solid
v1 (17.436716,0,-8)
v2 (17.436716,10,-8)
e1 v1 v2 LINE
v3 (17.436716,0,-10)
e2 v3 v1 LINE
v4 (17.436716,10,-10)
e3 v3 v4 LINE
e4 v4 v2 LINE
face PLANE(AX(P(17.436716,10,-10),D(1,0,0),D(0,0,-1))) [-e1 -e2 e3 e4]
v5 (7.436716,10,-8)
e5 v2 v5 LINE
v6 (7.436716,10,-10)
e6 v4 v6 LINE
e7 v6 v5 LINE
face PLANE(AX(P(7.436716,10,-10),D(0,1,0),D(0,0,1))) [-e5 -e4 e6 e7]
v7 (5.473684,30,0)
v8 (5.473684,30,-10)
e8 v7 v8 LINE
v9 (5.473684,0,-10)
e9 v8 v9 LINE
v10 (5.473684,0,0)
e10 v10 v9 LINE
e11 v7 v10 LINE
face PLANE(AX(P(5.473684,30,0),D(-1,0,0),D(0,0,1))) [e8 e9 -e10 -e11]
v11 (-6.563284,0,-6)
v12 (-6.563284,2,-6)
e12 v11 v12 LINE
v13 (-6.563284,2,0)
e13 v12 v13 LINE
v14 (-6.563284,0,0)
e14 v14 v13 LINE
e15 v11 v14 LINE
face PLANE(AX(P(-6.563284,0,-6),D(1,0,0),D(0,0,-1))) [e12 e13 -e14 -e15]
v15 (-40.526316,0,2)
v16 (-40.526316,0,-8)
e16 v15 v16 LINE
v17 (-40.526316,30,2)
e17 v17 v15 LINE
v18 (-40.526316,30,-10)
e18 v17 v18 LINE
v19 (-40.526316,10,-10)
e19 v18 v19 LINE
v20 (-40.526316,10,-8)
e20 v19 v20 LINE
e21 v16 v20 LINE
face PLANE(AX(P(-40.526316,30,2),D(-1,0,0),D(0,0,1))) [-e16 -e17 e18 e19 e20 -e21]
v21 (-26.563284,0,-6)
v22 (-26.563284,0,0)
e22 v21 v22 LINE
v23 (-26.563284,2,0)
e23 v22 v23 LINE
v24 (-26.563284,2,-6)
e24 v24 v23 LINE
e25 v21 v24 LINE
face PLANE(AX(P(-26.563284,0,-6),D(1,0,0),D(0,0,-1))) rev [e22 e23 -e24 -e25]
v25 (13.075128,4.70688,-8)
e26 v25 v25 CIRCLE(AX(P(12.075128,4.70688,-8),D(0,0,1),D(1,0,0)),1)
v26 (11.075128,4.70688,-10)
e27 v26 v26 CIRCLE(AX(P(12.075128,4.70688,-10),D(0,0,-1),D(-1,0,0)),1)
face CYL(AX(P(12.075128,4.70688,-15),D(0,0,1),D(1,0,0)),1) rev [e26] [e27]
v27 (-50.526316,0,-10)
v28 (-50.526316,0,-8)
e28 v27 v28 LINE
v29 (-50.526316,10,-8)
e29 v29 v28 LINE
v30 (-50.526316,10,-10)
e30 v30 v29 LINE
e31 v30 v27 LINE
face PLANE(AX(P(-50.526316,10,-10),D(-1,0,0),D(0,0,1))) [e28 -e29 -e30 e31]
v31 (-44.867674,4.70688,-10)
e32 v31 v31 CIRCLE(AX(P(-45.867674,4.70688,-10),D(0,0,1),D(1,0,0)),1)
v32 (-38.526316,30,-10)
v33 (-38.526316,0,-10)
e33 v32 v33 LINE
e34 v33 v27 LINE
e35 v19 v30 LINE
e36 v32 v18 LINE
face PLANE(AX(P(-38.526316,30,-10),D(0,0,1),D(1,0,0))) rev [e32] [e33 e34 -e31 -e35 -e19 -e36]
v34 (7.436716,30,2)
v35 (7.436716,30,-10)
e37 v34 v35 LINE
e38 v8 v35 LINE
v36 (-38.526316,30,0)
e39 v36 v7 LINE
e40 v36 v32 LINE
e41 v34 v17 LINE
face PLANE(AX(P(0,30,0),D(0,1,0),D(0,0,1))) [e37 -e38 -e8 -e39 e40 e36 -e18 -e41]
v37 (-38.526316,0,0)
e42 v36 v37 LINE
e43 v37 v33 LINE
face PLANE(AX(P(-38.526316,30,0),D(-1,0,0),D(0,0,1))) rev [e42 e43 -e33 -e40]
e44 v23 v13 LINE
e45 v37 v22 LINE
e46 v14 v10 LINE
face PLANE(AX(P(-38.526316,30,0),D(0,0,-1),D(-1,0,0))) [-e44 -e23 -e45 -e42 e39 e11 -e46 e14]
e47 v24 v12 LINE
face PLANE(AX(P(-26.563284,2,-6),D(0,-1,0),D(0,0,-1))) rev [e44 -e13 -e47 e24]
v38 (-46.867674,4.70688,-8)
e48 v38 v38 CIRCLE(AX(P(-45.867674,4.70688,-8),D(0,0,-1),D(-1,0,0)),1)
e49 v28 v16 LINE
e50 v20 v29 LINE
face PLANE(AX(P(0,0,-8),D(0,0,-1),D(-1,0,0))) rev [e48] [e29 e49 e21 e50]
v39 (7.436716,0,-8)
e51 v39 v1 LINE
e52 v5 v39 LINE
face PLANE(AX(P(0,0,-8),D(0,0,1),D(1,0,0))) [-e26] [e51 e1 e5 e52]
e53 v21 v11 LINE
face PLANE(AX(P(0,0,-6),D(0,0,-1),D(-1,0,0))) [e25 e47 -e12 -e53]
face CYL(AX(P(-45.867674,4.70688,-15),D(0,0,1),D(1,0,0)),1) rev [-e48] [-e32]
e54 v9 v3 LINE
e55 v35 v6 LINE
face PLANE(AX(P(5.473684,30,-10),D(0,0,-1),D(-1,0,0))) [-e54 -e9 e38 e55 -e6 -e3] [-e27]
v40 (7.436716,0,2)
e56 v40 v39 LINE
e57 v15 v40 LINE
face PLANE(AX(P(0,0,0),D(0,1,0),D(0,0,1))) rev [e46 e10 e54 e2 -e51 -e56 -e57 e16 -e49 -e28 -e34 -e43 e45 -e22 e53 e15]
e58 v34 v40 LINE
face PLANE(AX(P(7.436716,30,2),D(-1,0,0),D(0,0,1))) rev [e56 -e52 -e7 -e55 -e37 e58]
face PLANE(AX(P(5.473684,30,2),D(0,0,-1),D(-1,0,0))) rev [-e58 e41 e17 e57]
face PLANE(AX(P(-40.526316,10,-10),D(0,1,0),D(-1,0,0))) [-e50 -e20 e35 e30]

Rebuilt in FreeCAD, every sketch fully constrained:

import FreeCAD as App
import Part
import Sketcher

V = App.Vector

doc = App.newDocument("Part")
body = doc.addObject("PartDesign::Body", "Body")

sketch1 = doc.addObject("Sketcher::SketchObject", "Sketch")
body.addObject(sketch1)
sketch1.AttachmentSupport = (doc.XZ_Plane, [""])
sketch1.MapMode = "FlatFace"
sketch1.addGeometry([
    Part.LineSegment(V(5.5, 0, 0), V(-38.5, 0, 0)),
    Part.LineSegment(V(-38.5, 0, 0), V(-38.5, -10, 0)),
    Part.LineSegment(V(-38.5, -10, 0), V(-40.5, -10, 0)),
    Part.LineSegment(V(-40.5, -10, 0), V(-40.5, 2, 0)),
    Part.LineSegment(V(-40.5, 2, 0), V(7.4, 2, 0)),
    Part.LineSegment(V(7.4, 2, 0), V(7.4, -10, 0)),
    Part.LineSegment(V(7.4, -10, 0), V(5.5, -10, 0)),
    Part.LineSegment(V(5.5, -10, 0), V(5.5, 0, 0)),
], False)
sketch1.addConstraint([
    Sketcher.Constraint("Coincident", 0, 2, 1, 1),
    Sketcher.Constraint("Coincident", 1, 2, 2, 1),
    Sketcher.Constraint("Coincident", 2, 2, 3, 1),
    Sketcher.Constraint("Coincident", 3, 2, 4, 1),
    Sketcher.Constraint("Coincident", 4, 2, 5, 1),
    Sketcher.Constraint("Coincident", 5, 2, 6, 1),
    Sketcher.Constraint("Coincident", 6, 2, 7, 1),
    Sketcher.Constraint("Coincident", 7, 2, 0, 1),
    Sketcher.Constraint("Horizontal", 0),
    Sketcher.Constraint("Vertical", 1),
    Sketcher.Constraint("Horizontal", 2),
    Sketcher.Constraint("Vertical", 3),
    Sketcher.Constraint("Horizontal", 4),
    Sketcher.Constraint("Vertical", 5),
    Sketcher.Constraint("Horizontal", 6),
    Sketcher.Constraint("Vertical", 7),
    Sketcher.Constraint("PointOnObject", 0, 2, -1),
    Sketcher.Constraint("Horizontal", 2, 2, 5, 2),
    Sketcher.Constraint("DistanceX", 0, 2, 0, 1, 44.0),
    Sketcher.Constraint("DistanceX", 2, 2, 2, 1, 2.0),
    Sketcher.Constraint("DistanceY", 1, 2, 1, 1, 10.0),
    Sketcher.Constraint("DistanceY", 3, 1, 3, 2, 12.0),
    Sketcher.Constraint("DistanceX", 4, 1, 4, 2, 47.963032),
    Sketcher.Constraint("DistanceX", 0, 2, -1, 1, 38.526316),
])
pad1 = doc.addObject("PartDesign::Pad", "Pad")
body.addObject(pad1)
pad1.Profile = sketch1
pad1.Length = 30
pad1.Reversed = True

sketch2 = doc.addObject("Sketcher::SketchObject", "Sketch001")
body.addObject(sketch2)
sketch2.AttachmentSupport = (doc.XY_Plane, [""])
sketch2.MapMode = "FlatFace"
sketch2.addGeometry([
    Part.LineSegment(V(-26.6, 2, 0), V(-26.6, 0, 0)),
    Part.LineSegment(V(-26.6, 0, 0), V(-6.6, 0, 0)),
    Part.LineSegment(V(-6.6, 0, 0), V(-6.6, 2, 0)),
    Part.LineSegment(V(-6.6, 2, 0), V(-26.6, 2, 0)),
], False)
sketch2.addConstraint([
    Sketcher.Constraint("Coincident", 0, 2, 1, 1),
    Sketcher.Constraint("Coincident", 1, 2, 2, 1),
    Sketcher.Constraint("Coincident", 2, 2, 3, 1),
    Sketcher.Constraint("Coincident", 3, 2, 0, 1),
    Sketcher.Constraint("Vertical", 0),
    Sketcher.Constraint("Horizontal", 1),
    Sketcher.Constraint("Vertical", 2),
    Sketcher.Constraint("Horizontal", 3),
    Sketcher.Constraint("PointOnObject", 0, 2, -1),
    Sketcher.Constraint("DistanceX", 1, 1, 1, 2, 20.0),
    Sketcher.Constraint("DistanceY", 0, 2, 0, 1, 2.0),
    Sketcher.Constraint("DistanceX", 0, 2, -1, 1, 26.563284),
])
pad2 = doc.addObject("PartDesign::Pad", "Pad001")
body.addObject(pad2)
pad2.Profile = sketch2
pad2.Length = 6
pad2.Reversed = True

sketch3 = doc.addObject("Sketcher::SketchObject", "Sketch002")
body.addObject(sketch3)
sketch3.AttachmentSupport = (doc.XY_Plane, [""])
sketch3.MapMode = "FlatFace"
sketch3.addGeometry([
    Part.LineSegment(V(-51, 10, 0), V(-51, 0, 0)),
    Part.LineSegment(V(-51, 0, 0), V(-41, 0, 0)),
    Part.LineSegment(V(-41, 0, 0), V(-41, 10, 0)),
    Part.LineSegment(V(-41, 10, 0), V(-51, 10, 0)),
    Part.LineSegment(V(7, 10, 0), V(7, 0, 0)),
    Part.LineSegment(V(7, 0, 0), V(17, 0, 0)),
    Part.LineSegment(V(17, 0, 0), V(17, 10, 0)),
    Part.LineSegment(V(17, 10, 0), V(7, 10, 0)),
], False)
sketch3.addConstraint([
    Sketcher.Constraint("Coincident", 0, 2, 1, 1),
    Sketcher.Constraint("Coincident", 1, 2, 2, 1),
    Sketcher.Constraint("Coincident", 2, 2, 3, 1),
    Sketcher.Constraint("Coincident", 3, 2, 0, 1),
    Sketcher.Constraint("Coincident", 4, 2, 5, 1),
    Sketcher.Constraint("Coincident", 5, 2, 6, 1),
    Sketcher.Constraint("Coincident", 6, 2, 7, 1),
    Sketcher.Constraint("Coincident", 7, 2, 4, 1),
    Sketcher.Constraint("Vertical", 0),
    Sketcher.Constraint("Horizontal", 1),
    Sketcher.Constraint("Vertical", 2),
    Sketcher.Constraint("Horizontal", 3),
    Sketcher.Constraint("Vertical", 4),
    Sketcher.Constraint("Horizontal", 5),
    Sketcher.Constraint("Vertical", 6),
    Sketcher.Constraint("Horizontal", 7),
    Sketcher.Constraint("PointOnObject", 0, 2, -1),
    Sketcher.Constraint("PointOnObject", 4, 2, -1),
    Sketcher.Constraint("Horizontal", 3, 2, 6, 2),
    Sketcher.Constraint("Equal", 3, 5),
    Sketcher.Constraint("Equal", 7, 0),
    Sketcher.Constraint("DistanceX", 1, 1, 1, 2, 10.0),
    Sketcher.Constraint("DistanceX", 1, 2, 4, 2, 47.963032),
    Sketcher.Constraint("DistanceX", 0, 2, -1, 1, 50.526316),
])
pad3 = doc.addObject("PartDesign::Pad", "Pad002")
body.addObject(pad3)
pad3.Profile = sketch3
pad3.Length = 10
pad3.Reversed = True

sketch4 = doc.addObject("Sketcher::SketchObject", "Sketch003")
body.addObject(sketch4)
sketch4.AttachmentSupport = (doc.XY_Plane, [""])
sketch4.MapMode = "FlatFace"
sketch4.addGeometry([
    Part.LineSegment(V(-51, 10, 0), V(-51, 0, 0)),
    Part.LineSegment(V(-51, 0, 0), V(-41, 0, 0)),
    Part.LineSegment(V(-41, 0, 0), V(-41, 10, 0)),
    Part.LineSegment(V(-41, 10, 0), V(-51, 10, 0)),
    Part.LineSegment(V(7, 10, 0), V(7, 0, 0)),
    Part.LineSegment(V(7, 0, 0), V(17, 0, 0)),
    Part.LineSegment(V(17, 0, 0), V(17, 10, 0)),
    Part.LineSegment(V(17, 10, 0), V(7, 10, 0)),
], False)
sketch4.addConstraint([
    Sketcher.Constraint("Coincident", 0, 2, 1, 1),
    Sketcher.Constraint("Coincident", 1, 2, 2, 1),
    Sketcher.Constraint("Coincident", 2, 2, 3, 1),
    Sketcher.Constraint("Coincident", 3, 2, 0, 1),
    Sketcher.Constraint("Coincident", 4, 2, 5, 1),
    Sketcher.Constraint("Coincident", 5, 2, 6, 1),
    Sketcher.Constraint("Coincident", 6, 2, 7, 1),
    Sketcher.Constraint("Coincident", 7, 2, 4, 1),
    Sketcher.Constraint("Vertical", 0),
    Sketcher.Constraint("Horizontal", 1),
    Sketcher.Constraint("Vertical", 2),
    Sketcher.Constraint("Horizontal", 3),
    Sketcher.Constraint("Vertical", 4),
    Sketcher.Constraint("Horizontal", 5),
    Sketcher.Constraint("Vertical", 6),
    Sketcher.Constraint("Horizontal", 7),
    Sketcher.Constraint("PointOnObject", 0, 2, -1),
    Sketcher.Constraint("PointOnObject", 4, 2, -1),
    Sketcher.Constraint("Horizontal", 3, 2, 6, 2),
    Sketcher.Constraint("Equal", 3, 5),
    Sketcher.Constraint("Equal", 7, 0),
    Sketcher.Constraint("DistanceX", 1, 1, 1, 2, 10.0),
    Sketcher.Constraint("DistanceX", 1, 2, 4, 2, 47.963032),
    Sketcher.Constraint("DistanceX", 0, 2, -1, 1, 50.526316),
])
pocket1 = doc.addObject("PartDesign::Pocket", "Pocket")
body.addObject(pocket1)
pocket1.Profile = sketch4
pocket1.Length = 8

sketch5 = doc.addObject("Sketcher::SketchObject", "Sketch004")
body.addObject(sketch5)
sketch5.AttachmentSupport = (doc.XY_Plane, [""])
sketch5.MapMode = "FlatFace"
sketch5.addGeometry([
    Part.Circle(V(-45.9, 4.7, 0), V(0, 0, 1), 1),
    Part.Circle(V(12.1, 4.7, 0), V(0, 0, 1), 1),
], False)
sketch5.addConstraint([
    Sketcher.Constraint("Equal", 0, 1),
    Sketcher.Constraint("Horizontal", 0, 3, 1, 3),
    Sketcher.Constraint("Diameter", 0, 2.0),
    Sketcher.Constraint("DistanceY", -1, 1, 0, 3, 4.70688),
    Sketcher.Constraint("DistanceX", -1, 1, 1, 3, 12.075128),
    Sketcher.Constraint("DistanceX", 0, 3, -1, 1, 45.867674),
])
pocket2 = doc.addObject("PartDesign::Pocket", "Pocket001")
body.addObject(pocket2)
pocket2.Profile = sketch5
pocket2.Length = 15

doc.recompute()
